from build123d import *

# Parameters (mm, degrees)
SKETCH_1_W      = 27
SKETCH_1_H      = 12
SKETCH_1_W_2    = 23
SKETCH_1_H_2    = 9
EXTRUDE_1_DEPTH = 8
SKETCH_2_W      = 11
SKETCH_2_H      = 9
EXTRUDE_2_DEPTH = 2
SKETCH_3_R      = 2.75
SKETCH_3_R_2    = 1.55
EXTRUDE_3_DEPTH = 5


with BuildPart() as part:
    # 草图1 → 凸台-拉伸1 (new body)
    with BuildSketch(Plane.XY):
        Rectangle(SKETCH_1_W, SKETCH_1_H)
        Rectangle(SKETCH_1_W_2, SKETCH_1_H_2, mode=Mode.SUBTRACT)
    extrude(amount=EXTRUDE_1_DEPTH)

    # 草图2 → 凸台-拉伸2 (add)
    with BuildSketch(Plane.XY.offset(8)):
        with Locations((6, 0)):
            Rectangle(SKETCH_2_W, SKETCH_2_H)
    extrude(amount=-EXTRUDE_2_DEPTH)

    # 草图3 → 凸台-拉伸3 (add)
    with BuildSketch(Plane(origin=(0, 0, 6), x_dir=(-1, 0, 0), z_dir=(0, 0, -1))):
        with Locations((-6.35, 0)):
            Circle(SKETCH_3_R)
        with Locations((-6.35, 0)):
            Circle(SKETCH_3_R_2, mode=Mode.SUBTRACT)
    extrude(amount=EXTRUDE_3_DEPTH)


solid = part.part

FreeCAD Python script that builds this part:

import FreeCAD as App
import Part
import Sketcher
from FreeCAD import Vector
Q = App.Units.Quantity


def add_polygon(sketch, points):
    """Adds a closed chain of lines whose ends are joined by coincident constraints."""
    first, n = sketch.GeometryCount, len(points)
    for a, b in zip(points, points[1:] + points[:1]):
        sketch.addGeometry(Part.LineSegment(App.Vector(*a, 0), App.Vector(*b, 0)), False)
    for i in range(n):
        sketch.addConstraint(Sketcher.Constraint("Coincident", first + i, 2, first + (i + 1) % n, 1))

doc = App.newDocument("Part")
body = doc.addObject("PartDesign::Body", "Body")

sketch1 = doc.addObject("Sketcher::SketchObject", "Sketch")
body.addObject(sketch1)
sketch1.AttachmentSupport = (doc.XY_Plane, [""])
sketch1.MapMode = "FlatFace"
add_polygon(sketch1, [(-14, 6), (-14, -6), (14, -6), (14, 6)])
add_polygon(sketch1, [(12, -4), (-12, -4), (-12, 4), (12, 4)])
sketch1.addConstraint(Sketcher.Constraint("Vertical", 0))
sketch1.addConstraint(Sketcher.Constraint("Horizontal", 1))
sketch1.addConstraint(Sketcher.Constraint("Vertical", 2))
sketch1.addConstraint(Sketcher.Constraint("Horizontal", 3))
sketch1.addConstraint(Sketcher.Constraint("Horizontal", 4))
sketch1.addConstraint(Sketcher.Constraint("Vertical", 5))
sketch1.addConstraint(Sketcher.Constraint("Horizontal", 6))
sketch1.addConstraint(Sketcher.Constraint("Vertical", 7))
sketch1.addConstraint(Sketcher.Constraint("Symmetric", 0, 2, 2, 2, -1, 1))
sketch1.addConstraint(Sketcher.Constraint("Symmetric", 4, 2, 6, 2, -1, 1))
sketch1.addConstraint(Sketcher.Constraint("DistanceX", 1, 1, 1, 2, Q("27 mm")))
sketch1.addConstraint(Sketcher.Constraint("DistanceX", 4, 2, 4, 1, Q("23 mm")))
sketch1.addConstraint(Sketcher.Constraint("DistanceY", 0, 2, 0, 1, Q("12 mm")))
sketch1.addConstraint(Sketcher.Constraint("DistanceY", 5, 1, 5, 2, Q("9 mm")))
pad1 = doc.addObject("PartDesign::Pad", "Pad")
body.addObject(pad1)
pad1.Profile = sketch1
pad1.Length = 8

sketch2 = doc.addObject("Sketcher::SketchObject", "Sketch001")
body.addObject(sketch2)
sketch2.AttachmentSupport = (doc.XY_Plane, [""])
sketch2.MapMode = "FlatFace"
sketch2.AttachmentOffset = App.Placement(Vector(0, 0, 8), App.Rotation())
add_polygon(sketch2, [(0, 4), (0, -4), (12, -4), (12, 4)])
sketch2.addConstraint(Sketcher.Constraint("Vertical", 0))
sketch2.addConstraint(Sketcher.Constraint("Horizontal", 1))
sketch2.addConstraint(Sketcher.Constraint("Vertical", 2))
sketch2.addConstraint(Sketcher.Constraint("Horizontal", 3))
sketch2.addConstraint(Sketcher.Constraint("DistanceX", 1, 1, 1, 2, Q("11 mm")))
sketch2.addConstraint(Sketcher.Constraint("DistanceY", 0, 2, 0, 1, Q("9 mm")))
sketch2.addConstraint(Sketcher.Constraint("DistanceX", -1, 1, 0, 2, Q("0.5 mm")))
sketch2.addConstraint(Sketcher.Constraint("DistanceY", 0, 2, -1, 1, Q("4.5 mm")))
pad2 = doc.addObject("PartDesign::Pad", "Pad001")
body.addObject(pad2)
pad2.Profile = sketch2
pad2.Length = 2
pad2.Reversed = True

sketch3 = doc.addObject("Sketcher::SketchObject", "Sketch002")
body.addObject(sketch3)
sketch3.AttachmentSupport = (doc.XY_Plane, [""])
sketch3.MapMode = "FlatFace"
sketch3.AttachmentOffset = App.Placement(Vector(0, 0, 6), App.Rotation())
sketch3.addGeometry(Part.Circle(Vector(6.3, 0, 0), Vector(0, 0, 1), 2.8), False)
sketch3.addGeometry(Part.Circle(Vector(6.3, 0, 0), Vector(0, 0, 1), 1.6), False)
sketch3.addConstraint(Sketcher.Constraint("Coincident", 1, 3, 0, 3))
sketch3.addConstraint(Sketcher.Constraint("PointOnObject", 0, 3, -1))
sketch3.addConstraint(Sketcher.Constraint("Diameter", 0, Q("5.5 mm")))
sketch3.addConstraint(Sketcher.Constraint("Diameter", 1, Q("3.1 mm")))
sketch3.addConstraint(Sketcher.Constraint("DistanceX", -1, 1, 0, 3, Q("6.35 mm")))
pad3 = doc.addObject("PartDesign::Pad", "Pad002")
body.addObject(pad3)
pad3.Profile = sketch3
pad3.Length = 5
pad3.Reversed = True

doc.recompute()
